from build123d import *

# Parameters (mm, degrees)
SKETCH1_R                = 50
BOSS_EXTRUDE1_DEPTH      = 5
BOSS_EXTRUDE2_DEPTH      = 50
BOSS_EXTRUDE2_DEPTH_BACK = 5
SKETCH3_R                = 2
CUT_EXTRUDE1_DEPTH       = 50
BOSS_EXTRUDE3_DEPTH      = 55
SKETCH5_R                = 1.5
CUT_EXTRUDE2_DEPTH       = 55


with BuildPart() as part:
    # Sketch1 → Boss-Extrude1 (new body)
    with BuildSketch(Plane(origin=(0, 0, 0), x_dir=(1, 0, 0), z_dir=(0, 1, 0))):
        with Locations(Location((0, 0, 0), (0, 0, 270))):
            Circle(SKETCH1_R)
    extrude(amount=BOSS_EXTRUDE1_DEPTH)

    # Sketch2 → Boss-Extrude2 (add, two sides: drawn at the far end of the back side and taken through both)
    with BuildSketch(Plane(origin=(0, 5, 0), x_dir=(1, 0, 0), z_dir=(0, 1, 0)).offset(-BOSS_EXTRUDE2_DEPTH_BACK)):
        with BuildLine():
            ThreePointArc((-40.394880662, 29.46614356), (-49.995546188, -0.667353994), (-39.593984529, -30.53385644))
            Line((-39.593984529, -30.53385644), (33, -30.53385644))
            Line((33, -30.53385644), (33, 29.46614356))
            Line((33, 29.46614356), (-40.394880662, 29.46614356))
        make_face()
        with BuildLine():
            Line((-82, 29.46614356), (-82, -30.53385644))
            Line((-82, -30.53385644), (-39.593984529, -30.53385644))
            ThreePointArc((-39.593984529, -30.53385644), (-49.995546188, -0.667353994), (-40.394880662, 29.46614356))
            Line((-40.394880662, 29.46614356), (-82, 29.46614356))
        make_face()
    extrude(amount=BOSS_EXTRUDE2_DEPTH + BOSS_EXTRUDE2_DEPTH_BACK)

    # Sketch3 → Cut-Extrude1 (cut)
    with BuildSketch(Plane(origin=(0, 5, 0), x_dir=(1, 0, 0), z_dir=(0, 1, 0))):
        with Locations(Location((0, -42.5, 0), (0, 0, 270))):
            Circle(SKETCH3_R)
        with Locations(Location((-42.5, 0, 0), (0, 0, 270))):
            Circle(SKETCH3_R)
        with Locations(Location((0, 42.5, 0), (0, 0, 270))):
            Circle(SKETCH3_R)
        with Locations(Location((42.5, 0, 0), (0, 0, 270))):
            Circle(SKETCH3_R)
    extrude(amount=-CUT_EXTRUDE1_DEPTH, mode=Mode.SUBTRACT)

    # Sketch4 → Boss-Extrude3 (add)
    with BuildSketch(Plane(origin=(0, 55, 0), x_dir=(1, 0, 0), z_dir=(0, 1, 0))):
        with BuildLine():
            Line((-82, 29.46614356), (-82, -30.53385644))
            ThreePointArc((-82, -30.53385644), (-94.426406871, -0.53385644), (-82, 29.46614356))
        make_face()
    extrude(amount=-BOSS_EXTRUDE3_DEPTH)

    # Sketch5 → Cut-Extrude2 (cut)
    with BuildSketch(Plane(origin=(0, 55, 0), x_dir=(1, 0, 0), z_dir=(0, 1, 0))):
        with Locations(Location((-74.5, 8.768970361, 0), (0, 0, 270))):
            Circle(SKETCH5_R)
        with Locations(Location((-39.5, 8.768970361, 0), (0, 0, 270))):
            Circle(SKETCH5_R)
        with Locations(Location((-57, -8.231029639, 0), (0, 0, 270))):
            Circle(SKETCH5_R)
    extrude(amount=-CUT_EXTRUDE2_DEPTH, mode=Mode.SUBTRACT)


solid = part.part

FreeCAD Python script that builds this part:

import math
import FreeCAD as App
import Part
import Sketcher


def add_polygon(sketch, points):
    """Adds a closed chain of lines whose ends are joined by coincident constraints."""
    first, n = sketch.GeometryCount, len(points)
    for a, b in zip(points, points[1:] + points[:1]):
        sketch.addGeometry(Part.LineSegment(App.Vector(*a, 0), App.Vector(*b, 0)), False)
    for i in range(n):
        sketch.addConstraint(Sketcher.Constraint("Coincident", first + i, 2, first + (i + 1) % n, 1))

doc = App.newDocument("Part")
body = doc.addObject("PartDesign::Body", "Body")

sketch1 = body.newObject("Sketcher::SketchObject", "Sketch")
sketch1.AttachmentSupport = (doc.getObject("XZ_Plane"), [""])
sketch1.MapMode = "FlatFace"
sketch1.addGeometry(Part.Circle(App.Vector(0, 0, 0), App.Vector(0, 0, 1), 50), False)
sketch1.addConstraint(Sketcher.Constraint("Coincident", 0, 3, -1, 1))
sketch1.addConstraint(Sketcher.Constraint("Diameter", 0, 100.0))
pad1 = body.newObject("PartDesign::Pad", "Pad")
pad1.Profile = sketch1
pad1.Length = 5
pad1.Reversed = True

sketch2 = body.newObject("Sketcher::SketchObject", "Sketch001")
sketch2.AttachmentSupport = (doc.getObject("XZ_Plane"), [""])
sketch2.MapMode = "FlatFace"
sketch2.AttachmentOffset = App.Placement(App.Vector(0, 0, -5), App.Rotation())
add_polygon(sketch2, [(33, 30.533856), (33, -29.466144), (-82, -29.466144), (-82, 30.533856)])
sketch2.addConstraint(Sketcher.Constraint("Vertical", 0))
sketch2.addConstraint(Sketcher.Constraint("Horizontal", 1))
sketch2.addConstraint(Sketcher.Constraint("Vertical", 2))
sketch2.addConstraint(Sketcher.Constraint("Horizontal", 3))
sketch2.addConstraint(Sketcher.Constraint("DistanceX", 1, 2, 1, 1, 115.0))
sketch2.addConstraint(Sketcher.Constraint("DistanceY", 0, 2, 0, 1, 60.0))
sketch2.addConstraint(Sketcher.Constraint("DistanceX", -1, 1, 0, 2, 33.0))
sketch2.addConstraint(Sketcher.Constraint("DistanceY", 0, 2, -1, 1, 29.466144))
pad2 = body.newObject("PartDesign::Pad", "Pad001")
pad2.Profile = sketch2
pad2.Type = "TwoLengths"
pad2.Length = 50
pad2.Length2 = 5
pad2.Reversed = True

sketch3 = body.newObject("Sketcher::SketchObject", "Sketch002")
sketch3.AttachmentSupport = (doc.getObject("XZ_Plane"), [""])
sketch3.MapMode = "FlatFace"
sketch3.AttachmentOffset = App.Placement(App.Vector(0, 0, -5), App.Rotation())
sketch3.addGeometry(Part.Circle(App.Vector(0, 42.5, 0), App.Vector(0, 0, 1), 2), False)
sketch3.addGeometry(Part.Circle(App.Vector(-42.5, 0, 0), App.Vector(0, 0, 1), 2), False)
sketch3.addGeometry(Part.Circle(App.Vector(0, -42.5, 0), App.Vector(0, 0, 1), 2), False)
sketch3.addGeometry(Part.Circle(App.Vector(42.5, 0, 0), App.Vector(0, 0, 1), 2), False)
sketch3.addConstraint(Sketcher.Constraint("Equal", 0, 1))
sketch3.addConstraint(Sketcher.Constraint("Equal", 1, 2))
sketch3.addConstraint(Sketcher.Constraint("Equal", 2, 3))
sketch3.addConstraint(Sketcher.Constraint("Symmetric", 0, 3, 2, 3, -1, 1))
sketch3.addConstraint(Sketcher.Constraint("Symmetric", 1, 3, 3, 3, -1, 1))
sketch3.addConstraint(Sketcher.Constraint("PointOnObject", 0, 3, -2))
sketch3.addConstraint(Sketcher.Constraint("PointOnObject", 1, 3, -1))
sketch3.addConstraint(Sketcher.Constraint("Diameter", 0, 4.0))
sketch3.addConstraint(Sketcher.Constraint("DistanceY", 2, 3, 0, 3, 85.0))
sketch3.addConstraint(Sketcher.Constraint("DistanceX", 1, 3, 3, 3, 85.0))
pocket1 = body.newObject("PartDesign::Pocket", "Pocket")
pocket1.Profile = sketch3
pocket1.Length = 50
pocket1.Reversed = True

sketch4 = body.newObject("Sketcher::SketchObject", "Sketch003")
sketch4.AttachmentSupport = (doc.getObject("XZ_Plane"), [""])
sketch4.MapMode = "FlatFace"
sketch4.AttachmentOffset = App.Placement(App.Vector(0, 0, -55), App.Rotation())
sketch4.addGeometry(Part.LineSegment(App.Vector(-82, 30.533856, 0), App.Vector(-82, -29.466144, 0)), False)
sketch4.addGeometry(Part.ArcOfCircle(Part.Circle(App.Vector(-52, 0.533856, 0), App.Vector(0, 0, 1), 42.426407), math.radians(135), math.radians(225)), False)
sketch4.addConstraint(Sketcher.Constraint("Coincident", 0, 1, 1, 1))
sketch4.addConstraint(Sketcher.Constraint("Coincident", 1, 2, 0, 2))
sketch4.addConstraint(Sketcher.Constraint("Vertical", 0))
sketch4.addConstraint(Sketcher.Constraint("DistanceY", 0, 2, 0, 1, 60.0))
sketch4.addConstraint(Sketcher.Constraint("DistanceX", 1, 3, -1, 1, 52.0))
sketch4.addConstraint(Sketcher.Constraint("DistanceX", 0, 1, -1, 1, 82.0))
sketch4.addConstraint(Sketcher.Constraint("DistanceY", -1, 1, 1, 3, 0.533856))
pad3 = body.newObject("PartDesign::Pad", "Pad002")
pad3.Profile = sketch4
pad3.Length = 55

sketch5 = body.newObject("Sketcher::SketchObject", "Sketch004")
sketch5.AttachmentSupport = (doc.getObject("XZ_Plane"), [""])
sketch5.MapMode = "FlatFace"
sketch5.AttachmentOffset = App.Placement(App.Vector(0, 0, -55), App.Rotation())
sketch5.addGeometry(Part.Circle(App.Vector(-74.5, -8.76897, 0), App.Vector(0, 0, 1), 1.5), False)
sketch5.addGeometry(Part.Circle(App.Vector(-39.5, -8.76897, 0), App.Vector(0, 0, 1), 1.5), False)
sketch5.addGeometry(Part.Circle(App.Vector(-57, 8.23103, 0), App.Vector(0, 0, 1), 1.5), False)
sketch5.addConstraint(Sketcher.Constraint("Equal", 0, 1))
sketch5.addConstraint(Sketcher.Constraint("Equal", 1, 2))
sketch5.addConstraint(Sketcher.Constraint("Horizontal", 0, 3, 1, 3))
sketch5.addConstraint(Sketcher.Constraint("Diameter", 0, 3.0))
sketch5.addConstraint(Sketcher.Constraint("DistanceX", 2, 3, -1, 1, 57.0))
sketch5.addConstraint(Sketcher.Constraint("DistanceX", 0, 3, 1, 3, 35.0))
sketch5.addConstraint(Sketcher.Constraint("DistanceY", 0, 3, 2, 3, 17.0))
sketch5.addConstraint(Sketcher.Constraint("DistanceX", 0, 3, -1, 1, 74.5))
sketch5.addConstraint(Sketcher.Constraint("DistanceY", 0, 3, -1, 1, 8.76897))
pocket2 = body.newObject("PartDesign::Pocket", "Pocket001")
pocket2.Profile = sketch5
pocket2.Length = 55
pocket2.Reversed = True

doc.recompute()
